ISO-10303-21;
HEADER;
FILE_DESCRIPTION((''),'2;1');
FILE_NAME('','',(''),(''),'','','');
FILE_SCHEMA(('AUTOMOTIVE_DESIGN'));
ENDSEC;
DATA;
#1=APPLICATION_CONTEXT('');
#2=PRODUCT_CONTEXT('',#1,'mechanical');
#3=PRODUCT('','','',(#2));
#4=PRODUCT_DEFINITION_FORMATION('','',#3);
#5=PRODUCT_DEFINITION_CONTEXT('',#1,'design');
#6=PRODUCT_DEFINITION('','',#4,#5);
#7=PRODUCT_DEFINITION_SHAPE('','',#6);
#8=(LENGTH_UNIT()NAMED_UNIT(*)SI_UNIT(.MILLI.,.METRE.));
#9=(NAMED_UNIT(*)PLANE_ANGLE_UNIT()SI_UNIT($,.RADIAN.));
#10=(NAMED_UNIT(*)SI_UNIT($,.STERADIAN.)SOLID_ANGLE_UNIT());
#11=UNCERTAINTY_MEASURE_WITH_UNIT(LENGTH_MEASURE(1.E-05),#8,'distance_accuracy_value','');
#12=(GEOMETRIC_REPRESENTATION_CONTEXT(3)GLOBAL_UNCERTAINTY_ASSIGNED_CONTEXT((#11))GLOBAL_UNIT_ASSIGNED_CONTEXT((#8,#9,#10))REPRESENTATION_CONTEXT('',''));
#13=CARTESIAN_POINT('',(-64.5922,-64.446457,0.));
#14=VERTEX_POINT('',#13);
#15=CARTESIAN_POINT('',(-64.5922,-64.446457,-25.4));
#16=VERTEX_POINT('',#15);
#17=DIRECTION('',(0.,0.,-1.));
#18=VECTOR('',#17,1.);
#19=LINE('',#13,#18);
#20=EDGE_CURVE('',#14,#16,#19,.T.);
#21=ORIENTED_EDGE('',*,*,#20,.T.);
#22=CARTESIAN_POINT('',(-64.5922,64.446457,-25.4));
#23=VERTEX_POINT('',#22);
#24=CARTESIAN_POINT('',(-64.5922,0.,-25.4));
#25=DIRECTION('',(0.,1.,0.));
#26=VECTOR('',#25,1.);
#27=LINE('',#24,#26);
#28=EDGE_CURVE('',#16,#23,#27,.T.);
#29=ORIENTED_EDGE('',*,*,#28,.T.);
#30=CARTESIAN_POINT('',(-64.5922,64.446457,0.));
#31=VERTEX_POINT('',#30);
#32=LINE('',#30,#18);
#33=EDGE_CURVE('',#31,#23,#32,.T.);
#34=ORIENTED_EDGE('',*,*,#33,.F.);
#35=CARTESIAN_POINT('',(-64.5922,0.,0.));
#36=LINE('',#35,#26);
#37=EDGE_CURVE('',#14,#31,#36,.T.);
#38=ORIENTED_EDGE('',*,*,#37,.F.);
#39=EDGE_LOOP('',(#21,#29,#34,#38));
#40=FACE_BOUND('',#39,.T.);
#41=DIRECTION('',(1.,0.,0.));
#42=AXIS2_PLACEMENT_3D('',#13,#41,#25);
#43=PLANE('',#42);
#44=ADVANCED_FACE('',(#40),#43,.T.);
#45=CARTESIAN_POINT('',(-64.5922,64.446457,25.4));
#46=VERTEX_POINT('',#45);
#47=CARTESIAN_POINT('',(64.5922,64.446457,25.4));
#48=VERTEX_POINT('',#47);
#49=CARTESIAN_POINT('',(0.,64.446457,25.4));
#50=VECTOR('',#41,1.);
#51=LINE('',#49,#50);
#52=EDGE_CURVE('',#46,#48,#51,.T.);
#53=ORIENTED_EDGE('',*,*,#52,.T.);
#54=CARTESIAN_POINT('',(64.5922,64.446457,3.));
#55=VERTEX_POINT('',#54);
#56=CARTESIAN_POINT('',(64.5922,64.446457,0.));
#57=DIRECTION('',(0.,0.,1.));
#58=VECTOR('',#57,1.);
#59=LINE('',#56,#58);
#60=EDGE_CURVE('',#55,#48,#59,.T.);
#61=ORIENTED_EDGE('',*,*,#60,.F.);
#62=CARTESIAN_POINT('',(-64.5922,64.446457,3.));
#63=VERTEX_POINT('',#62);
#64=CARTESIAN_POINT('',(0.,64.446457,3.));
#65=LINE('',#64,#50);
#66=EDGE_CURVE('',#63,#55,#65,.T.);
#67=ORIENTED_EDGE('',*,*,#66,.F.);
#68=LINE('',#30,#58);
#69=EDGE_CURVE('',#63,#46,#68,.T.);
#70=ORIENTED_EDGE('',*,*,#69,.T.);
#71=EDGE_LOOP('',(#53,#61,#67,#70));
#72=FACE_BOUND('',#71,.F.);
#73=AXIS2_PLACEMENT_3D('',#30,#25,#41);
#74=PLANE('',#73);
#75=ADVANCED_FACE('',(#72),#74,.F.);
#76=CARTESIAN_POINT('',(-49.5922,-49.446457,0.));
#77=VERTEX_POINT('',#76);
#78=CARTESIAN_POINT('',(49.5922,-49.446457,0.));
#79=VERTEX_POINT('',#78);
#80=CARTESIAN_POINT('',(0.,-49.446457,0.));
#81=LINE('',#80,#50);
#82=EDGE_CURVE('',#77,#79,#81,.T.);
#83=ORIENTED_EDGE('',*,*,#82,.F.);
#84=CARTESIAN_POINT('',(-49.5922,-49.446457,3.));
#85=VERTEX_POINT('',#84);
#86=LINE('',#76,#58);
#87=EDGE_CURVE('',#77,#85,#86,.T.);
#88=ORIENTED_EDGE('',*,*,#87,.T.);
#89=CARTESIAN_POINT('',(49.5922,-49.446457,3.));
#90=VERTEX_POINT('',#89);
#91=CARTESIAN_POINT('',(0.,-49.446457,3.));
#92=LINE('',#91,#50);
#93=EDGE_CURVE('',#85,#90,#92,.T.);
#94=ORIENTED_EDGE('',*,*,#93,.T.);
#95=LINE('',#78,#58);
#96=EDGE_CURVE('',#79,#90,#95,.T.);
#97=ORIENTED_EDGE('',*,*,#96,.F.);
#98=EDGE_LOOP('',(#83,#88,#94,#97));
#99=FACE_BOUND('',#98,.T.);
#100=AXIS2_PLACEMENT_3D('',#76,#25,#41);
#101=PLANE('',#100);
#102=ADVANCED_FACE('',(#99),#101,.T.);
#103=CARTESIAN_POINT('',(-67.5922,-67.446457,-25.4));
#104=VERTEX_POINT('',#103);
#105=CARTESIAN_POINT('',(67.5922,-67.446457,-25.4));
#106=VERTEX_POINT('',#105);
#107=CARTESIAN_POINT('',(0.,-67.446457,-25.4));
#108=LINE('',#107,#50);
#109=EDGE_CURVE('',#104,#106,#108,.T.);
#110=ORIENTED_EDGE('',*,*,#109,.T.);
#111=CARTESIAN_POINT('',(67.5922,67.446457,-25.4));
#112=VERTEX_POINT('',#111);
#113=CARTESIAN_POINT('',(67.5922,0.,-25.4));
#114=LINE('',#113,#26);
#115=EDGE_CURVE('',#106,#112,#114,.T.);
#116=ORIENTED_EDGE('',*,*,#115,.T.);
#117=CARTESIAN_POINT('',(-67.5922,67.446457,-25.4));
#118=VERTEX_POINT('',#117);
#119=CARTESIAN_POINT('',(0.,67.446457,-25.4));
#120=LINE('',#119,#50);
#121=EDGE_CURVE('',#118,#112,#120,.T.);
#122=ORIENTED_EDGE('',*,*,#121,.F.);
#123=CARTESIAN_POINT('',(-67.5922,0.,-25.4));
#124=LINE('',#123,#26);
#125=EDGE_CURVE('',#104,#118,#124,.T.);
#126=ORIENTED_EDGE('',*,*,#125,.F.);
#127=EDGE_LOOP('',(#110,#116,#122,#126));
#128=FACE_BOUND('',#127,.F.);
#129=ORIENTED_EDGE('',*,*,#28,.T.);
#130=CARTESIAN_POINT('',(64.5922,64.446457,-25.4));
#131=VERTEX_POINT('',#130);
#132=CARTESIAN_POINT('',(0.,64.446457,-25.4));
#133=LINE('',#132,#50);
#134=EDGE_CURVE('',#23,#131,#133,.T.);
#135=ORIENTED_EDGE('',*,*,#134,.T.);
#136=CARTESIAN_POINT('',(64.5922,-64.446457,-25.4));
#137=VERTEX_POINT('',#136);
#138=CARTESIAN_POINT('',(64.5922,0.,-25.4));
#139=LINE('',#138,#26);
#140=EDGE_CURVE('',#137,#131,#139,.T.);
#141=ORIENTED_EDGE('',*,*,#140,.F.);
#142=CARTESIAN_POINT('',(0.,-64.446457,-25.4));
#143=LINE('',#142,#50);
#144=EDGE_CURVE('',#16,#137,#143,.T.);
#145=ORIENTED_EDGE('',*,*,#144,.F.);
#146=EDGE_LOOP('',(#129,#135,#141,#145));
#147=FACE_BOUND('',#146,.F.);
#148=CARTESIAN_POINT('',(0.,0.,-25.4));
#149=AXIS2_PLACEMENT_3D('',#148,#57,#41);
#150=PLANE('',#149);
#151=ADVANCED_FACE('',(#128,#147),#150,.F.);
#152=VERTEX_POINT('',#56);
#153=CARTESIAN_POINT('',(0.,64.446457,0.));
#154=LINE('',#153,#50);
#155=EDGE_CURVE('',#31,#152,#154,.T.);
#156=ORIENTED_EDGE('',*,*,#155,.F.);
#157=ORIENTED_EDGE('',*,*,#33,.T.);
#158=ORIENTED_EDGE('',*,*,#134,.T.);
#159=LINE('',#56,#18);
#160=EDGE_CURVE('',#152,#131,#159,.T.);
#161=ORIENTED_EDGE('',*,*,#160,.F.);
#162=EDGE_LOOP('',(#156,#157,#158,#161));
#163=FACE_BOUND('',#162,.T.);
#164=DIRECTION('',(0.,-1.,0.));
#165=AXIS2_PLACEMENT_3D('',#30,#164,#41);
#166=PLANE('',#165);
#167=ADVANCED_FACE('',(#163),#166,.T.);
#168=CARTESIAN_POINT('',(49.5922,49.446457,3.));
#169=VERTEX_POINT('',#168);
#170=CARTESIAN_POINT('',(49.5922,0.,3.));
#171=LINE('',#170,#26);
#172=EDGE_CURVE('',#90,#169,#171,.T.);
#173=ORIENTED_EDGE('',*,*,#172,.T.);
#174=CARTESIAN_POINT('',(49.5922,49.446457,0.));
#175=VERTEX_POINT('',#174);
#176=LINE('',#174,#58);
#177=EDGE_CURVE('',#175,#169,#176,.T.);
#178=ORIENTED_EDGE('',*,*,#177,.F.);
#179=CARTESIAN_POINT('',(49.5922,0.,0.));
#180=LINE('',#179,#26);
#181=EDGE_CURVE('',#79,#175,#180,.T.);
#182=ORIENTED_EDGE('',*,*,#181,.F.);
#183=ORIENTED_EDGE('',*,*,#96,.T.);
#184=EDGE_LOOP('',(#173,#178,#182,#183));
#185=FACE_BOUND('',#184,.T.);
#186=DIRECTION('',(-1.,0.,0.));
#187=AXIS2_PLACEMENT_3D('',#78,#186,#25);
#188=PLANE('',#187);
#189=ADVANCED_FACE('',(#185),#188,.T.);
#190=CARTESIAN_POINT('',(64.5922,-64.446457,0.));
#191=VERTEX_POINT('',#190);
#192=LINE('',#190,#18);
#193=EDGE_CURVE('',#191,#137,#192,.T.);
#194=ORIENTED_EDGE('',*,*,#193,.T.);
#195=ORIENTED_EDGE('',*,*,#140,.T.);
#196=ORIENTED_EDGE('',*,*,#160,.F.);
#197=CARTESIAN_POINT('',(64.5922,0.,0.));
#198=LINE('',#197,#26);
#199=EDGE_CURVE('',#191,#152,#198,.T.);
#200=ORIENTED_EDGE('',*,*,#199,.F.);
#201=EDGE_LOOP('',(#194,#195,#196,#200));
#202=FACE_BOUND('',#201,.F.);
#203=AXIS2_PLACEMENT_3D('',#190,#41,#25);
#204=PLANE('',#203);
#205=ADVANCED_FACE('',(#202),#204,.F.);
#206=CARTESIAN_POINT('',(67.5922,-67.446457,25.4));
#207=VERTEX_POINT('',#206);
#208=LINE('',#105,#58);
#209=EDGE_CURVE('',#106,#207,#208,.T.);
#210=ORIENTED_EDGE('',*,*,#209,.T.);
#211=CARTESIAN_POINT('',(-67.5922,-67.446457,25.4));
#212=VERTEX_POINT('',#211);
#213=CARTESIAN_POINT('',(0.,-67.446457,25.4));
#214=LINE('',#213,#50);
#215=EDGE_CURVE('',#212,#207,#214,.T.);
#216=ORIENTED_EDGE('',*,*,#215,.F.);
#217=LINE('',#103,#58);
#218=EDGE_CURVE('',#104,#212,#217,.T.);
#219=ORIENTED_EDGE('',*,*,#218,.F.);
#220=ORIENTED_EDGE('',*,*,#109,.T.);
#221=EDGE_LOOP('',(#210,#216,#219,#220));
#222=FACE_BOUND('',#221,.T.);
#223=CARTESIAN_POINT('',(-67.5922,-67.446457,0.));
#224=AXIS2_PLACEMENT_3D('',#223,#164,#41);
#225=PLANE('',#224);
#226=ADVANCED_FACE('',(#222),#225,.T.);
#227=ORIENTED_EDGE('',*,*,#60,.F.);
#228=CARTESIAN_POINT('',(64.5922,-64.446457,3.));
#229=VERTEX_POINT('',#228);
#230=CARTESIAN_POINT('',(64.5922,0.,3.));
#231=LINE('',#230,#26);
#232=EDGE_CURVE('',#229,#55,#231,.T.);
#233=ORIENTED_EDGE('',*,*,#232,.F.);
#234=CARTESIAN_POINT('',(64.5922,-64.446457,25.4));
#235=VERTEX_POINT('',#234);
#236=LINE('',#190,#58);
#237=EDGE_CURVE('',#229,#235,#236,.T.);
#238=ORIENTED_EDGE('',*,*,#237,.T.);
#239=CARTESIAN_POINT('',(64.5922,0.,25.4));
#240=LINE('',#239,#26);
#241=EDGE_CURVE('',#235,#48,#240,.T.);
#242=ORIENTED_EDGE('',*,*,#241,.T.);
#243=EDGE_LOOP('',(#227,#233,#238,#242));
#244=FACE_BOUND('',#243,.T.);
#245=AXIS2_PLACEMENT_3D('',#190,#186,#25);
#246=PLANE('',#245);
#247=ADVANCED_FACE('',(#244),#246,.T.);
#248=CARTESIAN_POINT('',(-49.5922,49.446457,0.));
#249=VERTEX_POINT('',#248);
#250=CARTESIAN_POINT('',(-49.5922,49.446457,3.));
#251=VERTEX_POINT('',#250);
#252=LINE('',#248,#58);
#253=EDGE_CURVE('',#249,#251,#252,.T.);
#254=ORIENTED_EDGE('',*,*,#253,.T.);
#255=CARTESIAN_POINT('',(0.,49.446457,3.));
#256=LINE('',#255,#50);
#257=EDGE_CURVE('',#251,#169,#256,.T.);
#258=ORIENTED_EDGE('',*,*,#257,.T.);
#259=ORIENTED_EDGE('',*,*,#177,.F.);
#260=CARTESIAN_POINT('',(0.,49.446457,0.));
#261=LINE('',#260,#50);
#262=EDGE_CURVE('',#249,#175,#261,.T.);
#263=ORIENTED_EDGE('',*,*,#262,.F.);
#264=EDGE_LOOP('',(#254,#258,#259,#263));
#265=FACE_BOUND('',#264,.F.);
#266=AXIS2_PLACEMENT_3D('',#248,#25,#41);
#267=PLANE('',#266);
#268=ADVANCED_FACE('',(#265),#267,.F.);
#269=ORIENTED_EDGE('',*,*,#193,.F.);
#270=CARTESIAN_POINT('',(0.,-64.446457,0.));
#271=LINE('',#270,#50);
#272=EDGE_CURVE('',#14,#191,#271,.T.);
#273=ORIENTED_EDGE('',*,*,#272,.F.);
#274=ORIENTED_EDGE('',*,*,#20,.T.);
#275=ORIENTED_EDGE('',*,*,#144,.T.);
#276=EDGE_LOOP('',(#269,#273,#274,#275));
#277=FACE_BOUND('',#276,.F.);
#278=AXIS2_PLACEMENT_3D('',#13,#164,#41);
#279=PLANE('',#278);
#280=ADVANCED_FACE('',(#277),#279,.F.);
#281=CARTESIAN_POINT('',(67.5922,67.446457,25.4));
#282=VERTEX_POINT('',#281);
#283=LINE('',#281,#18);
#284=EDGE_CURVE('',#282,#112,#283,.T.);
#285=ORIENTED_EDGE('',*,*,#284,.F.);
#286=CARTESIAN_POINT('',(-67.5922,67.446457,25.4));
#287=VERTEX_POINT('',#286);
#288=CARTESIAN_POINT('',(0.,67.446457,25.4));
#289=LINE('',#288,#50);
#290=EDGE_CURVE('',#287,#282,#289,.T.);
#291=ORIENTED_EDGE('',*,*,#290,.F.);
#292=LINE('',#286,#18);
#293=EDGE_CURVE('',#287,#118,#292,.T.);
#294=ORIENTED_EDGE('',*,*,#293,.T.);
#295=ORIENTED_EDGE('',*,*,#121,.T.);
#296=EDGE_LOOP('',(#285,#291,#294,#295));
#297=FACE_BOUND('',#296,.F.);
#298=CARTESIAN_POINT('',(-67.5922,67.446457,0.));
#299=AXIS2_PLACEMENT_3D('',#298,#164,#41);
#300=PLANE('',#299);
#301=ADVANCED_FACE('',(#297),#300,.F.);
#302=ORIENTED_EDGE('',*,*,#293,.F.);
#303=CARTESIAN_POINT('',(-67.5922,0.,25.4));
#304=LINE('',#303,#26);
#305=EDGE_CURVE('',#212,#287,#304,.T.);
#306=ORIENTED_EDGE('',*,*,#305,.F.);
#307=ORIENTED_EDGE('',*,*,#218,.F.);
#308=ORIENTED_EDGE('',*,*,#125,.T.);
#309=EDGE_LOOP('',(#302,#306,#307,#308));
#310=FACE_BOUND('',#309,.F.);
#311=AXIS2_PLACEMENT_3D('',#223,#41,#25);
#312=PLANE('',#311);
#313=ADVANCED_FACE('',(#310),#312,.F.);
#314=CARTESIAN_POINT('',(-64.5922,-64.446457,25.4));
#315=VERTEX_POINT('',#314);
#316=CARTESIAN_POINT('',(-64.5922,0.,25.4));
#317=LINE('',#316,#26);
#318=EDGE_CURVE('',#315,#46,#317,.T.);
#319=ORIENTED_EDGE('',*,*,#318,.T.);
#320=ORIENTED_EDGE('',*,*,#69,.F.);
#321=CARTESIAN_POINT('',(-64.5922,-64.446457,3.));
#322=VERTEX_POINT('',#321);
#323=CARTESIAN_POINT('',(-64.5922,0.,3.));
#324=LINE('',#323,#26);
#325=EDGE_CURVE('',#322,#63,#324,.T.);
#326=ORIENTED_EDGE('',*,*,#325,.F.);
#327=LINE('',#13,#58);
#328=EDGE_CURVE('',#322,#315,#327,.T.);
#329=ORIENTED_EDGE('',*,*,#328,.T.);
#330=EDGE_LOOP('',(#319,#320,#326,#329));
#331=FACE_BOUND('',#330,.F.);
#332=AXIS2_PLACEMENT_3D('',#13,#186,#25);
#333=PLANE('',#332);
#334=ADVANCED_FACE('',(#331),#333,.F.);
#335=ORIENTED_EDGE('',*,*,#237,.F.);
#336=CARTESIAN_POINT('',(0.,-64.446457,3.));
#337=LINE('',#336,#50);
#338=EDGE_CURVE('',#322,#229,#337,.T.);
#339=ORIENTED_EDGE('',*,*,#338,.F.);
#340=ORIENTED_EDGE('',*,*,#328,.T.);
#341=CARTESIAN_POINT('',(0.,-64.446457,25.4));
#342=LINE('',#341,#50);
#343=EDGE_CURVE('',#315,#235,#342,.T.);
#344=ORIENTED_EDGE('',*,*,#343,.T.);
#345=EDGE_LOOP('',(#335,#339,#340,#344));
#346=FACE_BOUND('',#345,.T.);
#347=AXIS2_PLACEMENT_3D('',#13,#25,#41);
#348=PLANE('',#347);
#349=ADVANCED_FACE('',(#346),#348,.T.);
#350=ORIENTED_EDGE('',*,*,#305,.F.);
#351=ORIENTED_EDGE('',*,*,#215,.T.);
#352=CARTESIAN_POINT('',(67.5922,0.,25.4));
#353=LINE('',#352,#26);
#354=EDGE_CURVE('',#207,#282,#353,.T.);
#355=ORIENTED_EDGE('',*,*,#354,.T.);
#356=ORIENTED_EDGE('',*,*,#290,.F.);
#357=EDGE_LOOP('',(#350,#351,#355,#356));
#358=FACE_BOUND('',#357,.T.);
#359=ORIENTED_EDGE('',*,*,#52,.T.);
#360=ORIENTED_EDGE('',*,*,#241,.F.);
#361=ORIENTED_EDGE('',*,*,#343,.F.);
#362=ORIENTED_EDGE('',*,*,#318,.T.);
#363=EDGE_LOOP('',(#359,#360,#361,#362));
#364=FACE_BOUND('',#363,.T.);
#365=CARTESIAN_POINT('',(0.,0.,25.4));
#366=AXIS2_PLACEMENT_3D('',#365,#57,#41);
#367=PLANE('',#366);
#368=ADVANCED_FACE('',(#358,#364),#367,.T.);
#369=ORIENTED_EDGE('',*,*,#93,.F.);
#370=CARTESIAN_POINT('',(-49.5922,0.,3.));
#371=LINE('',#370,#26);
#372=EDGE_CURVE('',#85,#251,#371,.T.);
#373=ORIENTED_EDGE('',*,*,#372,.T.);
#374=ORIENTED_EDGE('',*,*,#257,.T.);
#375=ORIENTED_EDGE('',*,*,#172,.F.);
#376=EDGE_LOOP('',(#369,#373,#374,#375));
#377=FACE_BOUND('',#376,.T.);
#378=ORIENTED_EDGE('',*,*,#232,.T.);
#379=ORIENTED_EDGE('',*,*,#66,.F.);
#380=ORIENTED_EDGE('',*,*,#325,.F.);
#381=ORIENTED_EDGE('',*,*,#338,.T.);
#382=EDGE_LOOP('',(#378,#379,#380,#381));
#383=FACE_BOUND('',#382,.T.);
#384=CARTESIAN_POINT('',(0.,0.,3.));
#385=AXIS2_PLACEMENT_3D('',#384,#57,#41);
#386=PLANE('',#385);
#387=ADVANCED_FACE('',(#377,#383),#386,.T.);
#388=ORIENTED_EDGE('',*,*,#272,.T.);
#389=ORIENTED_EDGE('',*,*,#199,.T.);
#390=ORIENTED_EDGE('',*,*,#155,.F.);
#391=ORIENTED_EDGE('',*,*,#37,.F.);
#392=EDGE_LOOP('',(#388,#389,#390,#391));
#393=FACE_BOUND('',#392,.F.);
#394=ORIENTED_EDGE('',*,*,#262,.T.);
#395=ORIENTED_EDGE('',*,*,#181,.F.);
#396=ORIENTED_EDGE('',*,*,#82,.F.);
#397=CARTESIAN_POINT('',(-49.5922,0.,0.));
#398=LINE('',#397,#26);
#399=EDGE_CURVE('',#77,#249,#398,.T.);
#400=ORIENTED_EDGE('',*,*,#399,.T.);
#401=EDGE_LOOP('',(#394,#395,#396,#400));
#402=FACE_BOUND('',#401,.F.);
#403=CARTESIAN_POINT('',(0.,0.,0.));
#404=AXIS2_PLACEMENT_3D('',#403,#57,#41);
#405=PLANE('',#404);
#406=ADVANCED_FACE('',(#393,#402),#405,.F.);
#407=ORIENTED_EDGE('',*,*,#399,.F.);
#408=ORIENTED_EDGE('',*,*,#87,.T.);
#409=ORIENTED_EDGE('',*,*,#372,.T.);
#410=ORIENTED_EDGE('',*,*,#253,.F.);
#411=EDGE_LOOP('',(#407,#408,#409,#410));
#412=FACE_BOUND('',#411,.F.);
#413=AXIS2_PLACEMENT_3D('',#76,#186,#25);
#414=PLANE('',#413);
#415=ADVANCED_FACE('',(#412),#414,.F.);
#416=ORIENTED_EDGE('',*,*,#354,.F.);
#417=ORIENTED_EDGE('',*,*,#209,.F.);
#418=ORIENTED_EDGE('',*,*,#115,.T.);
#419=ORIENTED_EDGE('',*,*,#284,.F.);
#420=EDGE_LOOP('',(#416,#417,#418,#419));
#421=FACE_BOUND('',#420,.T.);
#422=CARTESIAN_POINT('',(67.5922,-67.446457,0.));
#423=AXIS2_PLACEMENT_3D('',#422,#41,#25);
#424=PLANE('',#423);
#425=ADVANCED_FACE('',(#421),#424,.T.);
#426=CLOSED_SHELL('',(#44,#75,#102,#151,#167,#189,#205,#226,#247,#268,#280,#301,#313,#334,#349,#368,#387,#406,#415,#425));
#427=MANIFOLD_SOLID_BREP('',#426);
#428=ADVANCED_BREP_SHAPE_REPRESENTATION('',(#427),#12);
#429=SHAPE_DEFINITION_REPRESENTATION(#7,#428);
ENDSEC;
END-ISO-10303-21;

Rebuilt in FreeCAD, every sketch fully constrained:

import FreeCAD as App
import Part
import Sketcher

V = App.Vector
Q = App.Units.Quantity


def add_polygon(sketch, points):
    """Adds a closed chain of lines whose ends are joined by coincident constraints."""
    first, n = sketch.GeometryCount, len(points)
    for a, b in zip(points, points[1:] + points[:1]):
        sketch.addGeometry(Part.LineSegment(App.Vector(*a, 0), App.Vector(*b, 0)), False)
    for i in range(n):
        sketch.addConstraint(Sketcher.Constraint("Coincident", first + i, 2, first + (i + 1) % n, 1))

doc = App.newDocument("Part")
body = doc.addObject("PartDesign::Body", "Body")

# Sketch on XY plane
sketch1 = body.newObject("Sketcher::SketchObject", "Sketch")
sketch1.AttachmentSupport = (doc.getObject("XY_Plane"), [""])
sketch1.MapMode = "FlatFace"
add_polygon(sketch1, [(-65, 64), (-65, -64), (65, -64), (65, 64)])  # lines 0-3
add_polygon(sketch1, [(50, -49), (-50, -49), (-50, 49), (50, 49)])  # lines 4-7
sketch1.addConstraint([
    Sketcher.Constraint("Vertical", 0),
    Sketcher.Constraint("Horizontal", 1),
    Sketcher.Constraint("Vertical", 2),
    Sketcher.Constraint("Horizontal", 3),
    Sketcher.Constraint("Horizontal", 4),
    Sketcher.Constraint("Vertical", 5),
    Sketcher.Constraint("Horizontal", 6),
    Sketcher.Constraint("Vertical", 7),
    Sketcher.Constraint("Symmetric", 0, 2, 2, 2, -1, 1),
    Sketcher.Constraint("Symmetric", 4, 2, 6, 2, -1, 1),
    Sketcher.Constraint("DistanceX", 1, 1, 1, 2, Q("5.086 in")),
    Sketcher.Constraint("DistanceX", 4, 2, 4, 1, Q("99.1844 mm")),
    Sketcher.Constraint("DistanceY", 0, 2, 4, 2, Q("15 mm")),
    Sketcher.Constraint("DistanceY", 0, 2, 0, 1, Q("128.892914 mm")),
])
pad1 = body.newObject("PartDesign::Pad", "Pad")
pad1.Profile = sketch1
pad1.Length = 3

# Sketch on XY plane
sketch2 = body.newObject("Sketcher::SketchObject", "Sketch001")
sketch2.AttachmentSupport = (doc.getObject("XY_Plane"), [""])
sketch2.MapMode = "FlatFace"
add_polygon(sketch2, [(-68, 67), (-68, -67), (68, -67), (68, 67)])  # lines 0-3
add_polygon(sketch2, [(65, -64), (-65, -64), (-65, 64), (65, 64)])  # lines 4-7
sketch2.addConstraint([
    Sketcher.Constraint("Vertical", 0),
    Sketcher.Constraint("Horizontal", 1),
    Sketcher.Constraint("Vertical", 2),
    Sketcher.Constraint("Horizontal", 3),
    Sketcher.Constraint("Horizontal", 4),
    Sketcher.Constraint("Vertical", 5),
    Sketcher.Constraint("Horizontal", 6),
    Sketcher.Constraint("Vertical", 7),
    Sketcher.Constraint("Symmetric", 0, 2, 2, 2, -1, 1),
    Sketcher.Constraint("Symmetric", 4, 2, 6, 2, -1, 1),
    Sketcher.Constraint("DistanceX", 4, 2, 4, 1, Q("5.086 in")),
    Sketcher.Constraint("DistanceX", 1, 1, 1, 2, Q("135.1844 mm")),
    Sketcher.Constraint("DistanceY", 0, 2, 4, 2, Q("3 mm")),
    Sketcher.Constraint("DistanceY", 0, 2, 0, 1, Q("134.892914 mm")),
])
pad2 = body.newObject("PartDesign::Pad", "Pad001")
pad2.Profile = sketch2
pad2.Type = "TwoLengths"
pad2.Length = Q("1 in")
pad2.Length2 = Q("1 in")

doc.recompute()
